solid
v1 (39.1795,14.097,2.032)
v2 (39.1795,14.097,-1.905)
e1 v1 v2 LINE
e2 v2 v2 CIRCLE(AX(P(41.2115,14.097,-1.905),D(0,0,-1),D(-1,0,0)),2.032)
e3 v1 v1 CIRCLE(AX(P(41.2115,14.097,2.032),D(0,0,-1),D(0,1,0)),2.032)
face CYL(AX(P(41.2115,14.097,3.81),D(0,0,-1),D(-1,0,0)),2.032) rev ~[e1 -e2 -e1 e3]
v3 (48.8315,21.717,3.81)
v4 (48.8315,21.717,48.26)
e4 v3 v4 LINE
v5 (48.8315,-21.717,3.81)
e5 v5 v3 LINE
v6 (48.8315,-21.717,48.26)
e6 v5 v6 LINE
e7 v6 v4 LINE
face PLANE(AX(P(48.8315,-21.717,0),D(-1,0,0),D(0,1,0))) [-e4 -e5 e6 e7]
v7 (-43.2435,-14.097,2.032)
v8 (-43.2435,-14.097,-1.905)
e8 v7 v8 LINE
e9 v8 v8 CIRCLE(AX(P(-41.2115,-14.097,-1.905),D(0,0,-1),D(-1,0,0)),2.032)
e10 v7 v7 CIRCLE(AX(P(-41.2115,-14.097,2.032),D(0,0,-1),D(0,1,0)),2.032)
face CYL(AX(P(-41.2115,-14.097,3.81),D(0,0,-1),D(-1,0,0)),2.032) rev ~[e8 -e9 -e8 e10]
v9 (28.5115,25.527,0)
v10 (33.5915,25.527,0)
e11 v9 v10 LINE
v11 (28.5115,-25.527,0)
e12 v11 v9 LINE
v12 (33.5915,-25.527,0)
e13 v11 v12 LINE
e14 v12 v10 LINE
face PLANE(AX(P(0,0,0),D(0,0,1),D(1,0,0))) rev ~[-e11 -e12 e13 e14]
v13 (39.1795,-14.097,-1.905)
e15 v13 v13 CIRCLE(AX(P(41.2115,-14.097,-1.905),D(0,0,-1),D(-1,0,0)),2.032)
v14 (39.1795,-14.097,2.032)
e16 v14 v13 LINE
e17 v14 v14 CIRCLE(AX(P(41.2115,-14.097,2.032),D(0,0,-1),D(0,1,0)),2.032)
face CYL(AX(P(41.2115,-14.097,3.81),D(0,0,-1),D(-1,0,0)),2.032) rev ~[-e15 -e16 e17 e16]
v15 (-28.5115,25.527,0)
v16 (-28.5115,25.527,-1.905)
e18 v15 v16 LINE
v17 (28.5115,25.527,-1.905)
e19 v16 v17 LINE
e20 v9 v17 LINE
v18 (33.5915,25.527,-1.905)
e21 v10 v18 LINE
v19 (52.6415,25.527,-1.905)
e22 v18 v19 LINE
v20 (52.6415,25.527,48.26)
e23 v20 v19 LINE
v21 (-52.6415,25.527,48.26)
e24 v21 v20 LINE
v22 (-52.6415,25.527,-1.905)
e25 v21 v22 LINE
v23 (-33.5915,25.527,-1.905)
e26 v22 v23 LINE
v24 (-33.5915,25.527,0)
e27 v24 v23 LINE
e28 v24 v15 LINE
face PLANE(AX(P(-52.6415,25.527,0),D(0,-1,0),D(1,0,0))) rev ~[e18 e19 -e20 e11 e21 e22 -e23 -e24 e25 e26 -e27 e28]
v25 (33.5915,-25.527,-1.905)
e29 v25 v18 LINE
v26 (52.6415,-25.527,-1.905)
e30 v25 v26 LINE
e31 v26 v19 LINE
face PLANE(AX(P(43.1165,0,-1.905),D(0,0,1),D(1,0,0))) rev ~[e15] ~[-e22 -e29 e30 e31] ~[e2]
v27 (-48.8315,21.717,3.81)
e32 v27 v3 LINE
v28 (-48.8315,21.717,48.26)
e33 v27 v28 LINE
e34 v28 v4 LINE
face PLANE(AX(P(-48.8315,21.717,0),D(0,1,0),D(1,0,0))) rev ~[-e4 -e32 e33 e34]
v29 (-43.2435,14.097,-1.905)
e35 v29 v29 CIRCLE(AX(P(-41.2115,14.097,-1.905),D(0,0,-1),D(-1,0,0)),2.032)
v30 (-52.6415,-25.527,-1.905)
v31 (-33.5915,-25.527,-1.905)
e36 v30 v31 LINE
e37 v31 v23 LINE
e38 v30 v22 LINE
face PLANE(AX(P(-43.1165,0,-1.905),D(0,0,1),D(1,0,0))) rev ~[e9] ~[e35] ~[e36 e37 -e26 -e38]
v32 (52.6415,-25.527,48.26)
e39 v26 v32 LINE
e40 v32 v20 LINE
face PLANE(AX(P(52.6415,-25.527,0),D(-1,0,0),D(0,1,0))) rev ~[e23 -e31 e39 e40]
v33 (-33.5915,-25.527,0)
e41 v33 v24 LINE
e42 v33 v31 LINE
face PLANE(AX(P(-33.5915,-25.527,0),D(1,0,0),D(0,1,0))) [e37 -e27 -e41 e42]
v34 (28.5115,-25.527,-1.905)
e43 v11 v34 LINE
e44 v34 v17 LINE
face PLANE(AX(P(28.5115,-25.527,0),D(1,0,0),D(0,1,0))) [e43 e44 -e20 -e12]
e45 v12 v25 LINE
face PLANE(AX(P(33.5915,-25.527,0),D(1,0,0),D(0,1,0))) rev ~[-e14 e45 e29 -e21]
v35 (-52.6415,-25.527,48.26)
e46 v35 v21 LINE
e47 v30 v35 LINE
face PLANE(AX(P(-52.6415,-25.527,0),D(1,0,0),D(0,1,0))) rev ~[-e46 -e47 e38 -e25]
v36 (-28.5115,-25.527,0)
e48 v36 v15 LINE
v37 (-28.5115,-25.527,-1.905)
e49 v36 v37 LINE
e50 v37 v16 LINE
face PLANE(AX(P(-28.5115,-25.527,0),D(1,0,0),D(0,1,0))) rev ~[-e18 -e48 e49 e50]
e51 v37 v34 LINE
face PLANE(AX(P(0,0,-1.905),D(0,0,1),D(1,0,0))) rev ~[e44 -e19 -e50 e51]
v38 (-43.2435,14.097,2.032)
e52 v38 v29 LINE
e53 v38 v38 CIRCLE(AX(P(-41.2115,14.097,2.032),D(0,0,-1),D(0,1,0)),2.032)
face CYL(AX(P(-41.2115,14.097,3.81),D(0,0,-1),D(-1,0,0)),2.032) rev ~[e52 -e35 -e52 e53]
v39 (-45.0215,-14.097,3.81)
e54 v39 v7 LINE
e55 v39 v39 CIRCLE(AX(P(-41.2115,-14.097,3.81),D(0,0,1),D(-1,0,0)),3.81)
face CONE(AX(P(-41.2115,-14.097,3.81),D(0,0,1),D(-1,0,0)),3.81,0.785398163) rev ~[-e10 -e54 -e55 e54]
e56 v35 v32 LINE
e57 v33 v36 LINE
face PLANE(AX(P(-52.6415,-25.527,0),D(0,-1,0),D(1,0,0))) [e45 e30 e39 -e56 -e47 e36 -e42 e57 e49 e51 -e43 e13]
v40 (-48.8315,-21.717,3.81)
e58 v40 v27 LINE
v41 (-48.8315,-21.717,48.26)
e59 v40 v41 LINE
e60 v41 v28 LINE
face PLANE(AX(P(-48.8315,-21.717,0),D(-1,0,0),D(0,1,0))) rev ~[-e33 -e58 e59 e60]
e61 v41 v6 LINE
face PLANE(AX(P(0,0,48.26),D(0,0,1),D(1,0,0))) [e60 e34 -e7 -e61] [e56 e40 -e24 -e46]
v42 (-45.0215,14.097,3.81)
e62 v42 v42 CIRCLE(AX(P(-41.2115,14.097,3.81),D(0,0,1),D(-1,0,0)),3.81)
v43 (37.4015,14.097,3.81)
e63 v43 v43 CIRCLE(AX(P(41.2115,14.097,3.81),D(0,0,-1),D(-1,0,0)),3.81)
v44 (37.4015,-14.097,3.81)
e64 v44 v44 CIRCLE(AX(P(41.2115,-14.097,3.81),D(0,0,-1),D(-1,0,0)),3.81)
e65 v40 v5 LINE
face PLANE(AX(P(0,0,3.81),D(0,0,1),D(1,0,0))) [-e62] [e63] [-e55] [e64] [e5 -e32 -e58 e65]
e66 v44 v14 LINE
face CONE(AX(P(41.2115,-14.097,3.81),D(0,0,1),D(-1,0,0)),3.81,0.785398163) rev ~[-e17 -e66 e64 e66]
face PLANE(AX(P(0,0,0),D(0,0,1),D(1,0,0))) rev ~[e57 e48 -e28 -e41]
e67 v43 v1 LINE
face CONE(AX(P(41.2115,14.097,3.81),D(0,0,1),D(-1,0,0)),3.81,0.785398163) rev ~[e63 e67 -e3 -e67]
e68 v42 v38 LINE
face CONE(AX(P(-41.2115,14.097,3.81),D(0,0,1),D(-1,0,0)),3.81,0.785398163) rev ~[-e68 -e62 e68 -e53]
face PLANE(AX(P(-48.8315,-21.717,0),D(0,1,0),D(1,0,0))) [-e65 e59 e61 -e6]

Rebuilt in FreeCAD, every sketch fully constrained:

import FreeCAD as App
import Part
import Sketcher
from FreeCAD import Vector
Q = App.Units.Quantity

doc = App.newDocument("Part")
params = doc.addObject("Spreadsheet::Sheet", "Params")
for row, (alias, value) in enumerate([
    ("sketch1_height", "1.71 in"),
    ("sketch1_width", "3.845 in"),
    ("pad1_length", "0.15 in"),
    ("sketch2_height", "2.01 in"),
    ("sketch2_height2", "1.71 in"),
    ("sketch2_width", "4.145 in"),
    ("sketch2_width2", "3.845 in"),
    ("pad2_length", "1.9 in"),
    ("sketch3_width", "0.75 in"),
    ("sketch3_height", "2.01 in"),
    ("sketch3_width2", "2.245 in"),
    ("pad3_length", "0.075 in"),
    ("sketch4_diameter", "0.16 in"),
    ("hole_diameter", "0.16 in"),
    ("hole_depth", "0.984 in"),
    ("hole_csink_diameter", "0.3 in"),
], start=1):
    params.set(f"A{row}", alias)
    params.set(f"B{row}", "=" + value)
    params.setAlias(f"B{row}", alias)

body = doc.addObject("PartDesign::Body", "Body")

sketch1 = body.newObject("Sketcher::SketchObject", "Sketch")
sketch1.AttachmentSupport = (doc.getObject("XY_Plane"), [""])
sketch1.MapMode = "FlatFace"
sketch1.addGeometry([
    Part.LineSegment(Vector(-49, 22, 0), Vector(-49, -22, 0)),
    Part.LineSegment(Vector(-49, -22, 0), Vector(49, -22, 0)),
    Part.LineSegment(Vector(49, -22, 0), Vector(49, 22, 0)),
    Part.LineSegment(Vector(49, 22, 0), Vector(-49, 22, 0)),
], False)
sketch1.addConstraint([
    Sketcher.Constraint("Coincident", 0, 2, 1, 1),
    Sketcher.Constraint("Coincident", 1, 2, 2, 1),
    Sketcher.Constraint("Coincident", 2, 2, 3, 1),
    Sketcher.Constraint("Coincident", 3, 2, 0, 1),
    Sketcher.Constraint("Vertical", 0),
    Sketcher.Constraint("Horizontal", 1),
    Sketcher.Constraint("Vertical", 2),
    Sketcher.Constraint("Horizontal", 3),
    Sketcher.Constraint("Symmetric", 0, 2, 2, 2, -1, 1),
    Sketcher.Constraint("DistanceY", 0, 2, 0, 1, Q("1.71 in")),
    Sketcher.Constraint("DistanceX", 1, 1, 1, 2, Q("3.845 in")),
])
sketch1.setExpression("Constraints[9]", "Params.sketch1_height")
sketch1.setExpression("Constraints[10]", "Params.sketch1_width")
pad1 = body.newObject("PartDesign::Pad", "Pad")
pad1.Profile = sketch1
pad1.setExpression("Length", "Params.pad1_length")

sketch2 = body.newObject("Sketcher::SketchObject", "Sketch001")
sketch2.AttachmentSupport = (doc.getObject("XY_Plane"), [""])
sketch2.MapMode = "FlatFace"
sketch2.addGeometry([
    Part.LineSegment(Vector(-53, 26, 0), Vector(-53, -26, 0)),
    Part.LineSegment(Vector(-53, -26, 0), Vector(53, -26, 0)),
    Part.LineSegment(Vector(53, -26, 0), Vector(53, 26, 0)),
    Part.LineSegment(Vector(53, 26, 0), Vector(-53, 26, 0)),
    Part.LineSegment(Vector(49, -22, 0), Vector(-49, -22, 0)),
    Part.LineSegment(Vector(-49, -22, 0), Vector(-49, 22, 0)),
    Part.LineSegment(Vector(-49, 22, 0), Vector(49, 22, 0)),
    Part.LineSegment(Vector(49, 22, 0), Vector(49, -22, 0)),
], False)
sketch2.addConstraint([
    Sketcher.Constraint("Coincident", 0, 2, 1, 1),
    Sketcher.Constraint("Coincident", 1, 2, 2, 1),
    Sketcher.Constraint("Coincident", 2, 2, 3, 1),
    Sketcher.Constraint("Coincident", 3, 2, 0, 1),
    Sketcher.Constraint("Coincident", 4, 2, 5, 1),
    Sketcher.Constraint("Coincident", 5, 2, 6, 1),
    Sketcher.Constraint("Coincident", 6, 2, 7, 1),
    Sketcher.Constraint("Coincident", 7, 2, 4, 1),
    Sketcher.Constraint("Vertical", 0),
    Sketcher.Constraint("Horizontal", 1),
    Sketcher.Constraint("Vertical", 2),
    Sketcher.Constraint("Horizontal", 3),
    Sketcher.Constraint("Horizontal", 4),
    Sketcher.Constraint("Vertical", 5),
    Sketcher.Constraint("Horizontal", 6),
    Sketcher.Constraint("Vertical", 7),
    Sketcher.Constraint("Symmetric", 0, 2, 2, 2, -1, 1),
    Sketcher.Constraint("Symmetric", 4, 2, 6, 2, -1, 1),
    Sketcher.Constraint("DistanceY", 0, 2, 0, 1, Q("2.01 in")),
    Sketcher.Constraint("DistanceY", 5, 1, 5, 2, Q("1.71 in")),
    Sketcher.Constraint("DistanceX", 1, 1, 1, 2, Q("4.145 in")),
    Sketcher.Constraint("DistanceX", 4, 2, 4, 1, Q("3.845 in")),
])
sketch2.setExpression("Constraints[18]", "Params.sketch2_height")
sketch2.setExpression("Constraints[19]", "Params.sketch2_height2")
sketch2.setExpression("Constraints[20]", "Params.sketch2_width")
sketch2.setExpression("Constraints[21]", "Params.sketch2_width2")
pad2 = body.newObject("PartDesign::Pad", "Pad001")
pad2.Profile = sketch2
pad2.setExpression("Length", "Params.pad2_length")

sketch3 = body.newObject("Sketcher::SketchObject", "Sketch002")
sketch3.AttachmentSupport = (doc.getObject("XY_Plane"), [""])
sketch3.MapMode = "FlatFace"
sketch3.addGeometry([
    Part.LineSegment(Vector(-53, 26, 0), Vector(-53, -26, 0)),
    Part.LineSegment(Vector(-53, -26, 0), Vector(-34, -26, 0)),
    Part.LineSegment(Vector(-34, -26, 0), Vector(-34, 26, 0)),
    Part.LineSegment(Vector(-34, 26, 0), Vector(-53, 26, 0)),
    Part.LineSegment(Vector(34, 26, 0), Vector(34, -26, 0)),
    Part.LineSegment(Vector(34, -26, 0), Vector(53, -26, 0)),
    Part.LineSegment(Vector(53, -26, 0), Vector(53, 26, 0)),
    Part.LineSegment(Vector(53, 26, 0), Vector(34, 26, 0)),
    Part.LineSegment(Vector(-29, 26, 0), Vector(-29, -26, 0)),
    Part.LineSegment(Vector(-29, -26, 0), Vector(29, -26, 0)),
    Part.LineSegment(Vector(29, -26, 0), Vector(29, 26, 0)),
    Part.LineSegment(Vector(29, 26, 0), Vector(-29, 26, 0)),
], False)
sketch3.addConstraint([
    Sketcher.Constraint("Coincident", 0, 2, 1, 1),
    Sketcher.Constraint("Coincident", 1, 2, 2, 1),
    Sketcher.Constraint("Coincident", 2, 2, 3, 1),
    Sketcher.Constraint("Coincident", 3, 2, 0, 1),
    Sketcher.Constraint("Coincident", 4, 2, 5, 1),
    Sketcher.Constraint("Coincident", 5, 2, 6, 1),
    Sketcher.Constraint("Coincident", 6, 2, 7, 1),
    Sketcher.Constraint("Coincident", 7, 2, 4, 1),
    Sketcher.Constraint("Coincident", 8, 2, 9, 1),
    Sketcher.Constraint("Coincident", 9, 2, 10, 1),
    Sketcher.Constraint("Coincident", 10, 2, 11, 1),
    Sketcher.Constraint("Coincident", 11, 2, 8, 1),
    Sketcher.Constraint("Vertical", 0),
    Sketcher.Constraint("Horizontal", 1),
    Sketcher.Constraint("Vertical", 2),
    Sketcher.Constraint("Horizontal", 3),
    Sketcher.Constraint("Vertical", 4),
    Sketcher.Constraint("Horizontal", 5),
    Sketcher.Constraint("Vertical", 6),
    Sketcher.Constraint("Horizontal", 7),
    Sketcher.Constraint("Vertical", 8),
    Sketcher.Constraint("Horizontal", 9),
    Sketcher.Constraint("Vertical", 10),
    Sketcher.Constraint("Horizontal", 11),
    Sketcher.Constraint("Symmetric", 2, 2, 4, 2, -1, 1),
    Sketcher.Constraint("Symmetric", 0, 2, 6, 2, -1, 1),
    Sketcher.Constraint("Symmetric", 8, 2, 10, 2, -1, 1),
    Sketcher.Constraint("Horizontal", 1, 2, 4, 2),
    Sketcher.Constraint("Horizontal", 5, 2, 8, 2),
    Sketcher.Constraint("DistanceX", 1, 1, 1, 2, Q("0.75 in")),
    Sketcher.Constraint("DistanceY", 0, 2, 0, 1, Q("2.01 in")),
    Sketcher.Constraint("DistanceX", 1, 2, 8, 2, Q("0.2 in")),
    Sketcher.Constraint("DistanceX", 9, 1, 9, 2, Q("2.245 in")),
])
sketch3.setExpression("Constraints[29]", "Params.sketch3_width")
sketch3.setExpression("Constraints[30]", "Params.sketch3_height")
sketch3.setExpression("Constraints[32]", "Params.sketch3_width2")
pad3 = body.newObject("PartDesign::Pad", "Pad002")
pad3.Profile = sketch3
pad3.setExpression("Length", "Params.pad3_length")
pad3.Reversed = True

sketch4 = body.newObject("Sketcher::SketchObject", "Sketch003")
sketch4.AttachmentSupport = (doc.getObject("XY_Plane"), [""])
sketch4.MapMode = "FlatFace"
sketch4.AttachmentOffset = App.Placement(Vector(0, 0, 0.15 * 25.4), App.Rotation())
sketch4.addGeometry([
    Part.Circle(Vector(41.2, 14.1, 0), Vector(0, 0, 1), 2),
    Part.Circle(Vector(41.2, -14.1, 0), Vector(0, 0, 1), 2),
    Part.Circle(Vector(-41.2, -14.1, 0), Vector(0, 0, 1), 2),
    Part.Circle(Vector(-41.2, 14.1, 0), Vector(0, 0, 1), 2),
], False)
sketch4.addConstraint([
    Sketcher.Constraint("Equal", 0, 1),
    Sketcher.Constraint("Equal", 1, 2),
    Sketcher.Constraint("Equal", 2, 3),
    Sketcher.Constraint("Symmetric", 0, 3, 2, 3, -1, 1),
    Sketcher.Constraint("Symmetric", 1, 3, 3, 3, -1, 1),
    Sketcher.Constraint("Symmetric", 1, 3, 2, 3, -2),
    Sketcher.Constraint("Diameter", 0, Q("0.16 in")),
    Sketcher.Constraint("DistanceY", 1, 3, 0, 3, Q("1.11 in")),
    Sketcher.Constraint("DistanceX", 2, 3, 1, 3, Q("3.245 in")),
])
sketch4.setExpression("Constraints[6]", "Params.sketch4_diameter")
doc.recompute()
hole = body.newObject("PartDesign::Hole", "Hole")
hole.Profile = sketch4
hole.ThreadType = "None"
hole.setExpression("Diameter", "Params.hole_diameter")
hole.DepthType = "Dimension"
hole.setExpression("Depth", "Params.hole_depth")
hole.DrillPoint = "Flat"
hole.HoleCutType = "Countersink"
hole.setExpression("HoleCutDiameter", "Params.hole_csink_diameter")
hole.HoleCutCountersinkAngle = 90

doc.recompute()
